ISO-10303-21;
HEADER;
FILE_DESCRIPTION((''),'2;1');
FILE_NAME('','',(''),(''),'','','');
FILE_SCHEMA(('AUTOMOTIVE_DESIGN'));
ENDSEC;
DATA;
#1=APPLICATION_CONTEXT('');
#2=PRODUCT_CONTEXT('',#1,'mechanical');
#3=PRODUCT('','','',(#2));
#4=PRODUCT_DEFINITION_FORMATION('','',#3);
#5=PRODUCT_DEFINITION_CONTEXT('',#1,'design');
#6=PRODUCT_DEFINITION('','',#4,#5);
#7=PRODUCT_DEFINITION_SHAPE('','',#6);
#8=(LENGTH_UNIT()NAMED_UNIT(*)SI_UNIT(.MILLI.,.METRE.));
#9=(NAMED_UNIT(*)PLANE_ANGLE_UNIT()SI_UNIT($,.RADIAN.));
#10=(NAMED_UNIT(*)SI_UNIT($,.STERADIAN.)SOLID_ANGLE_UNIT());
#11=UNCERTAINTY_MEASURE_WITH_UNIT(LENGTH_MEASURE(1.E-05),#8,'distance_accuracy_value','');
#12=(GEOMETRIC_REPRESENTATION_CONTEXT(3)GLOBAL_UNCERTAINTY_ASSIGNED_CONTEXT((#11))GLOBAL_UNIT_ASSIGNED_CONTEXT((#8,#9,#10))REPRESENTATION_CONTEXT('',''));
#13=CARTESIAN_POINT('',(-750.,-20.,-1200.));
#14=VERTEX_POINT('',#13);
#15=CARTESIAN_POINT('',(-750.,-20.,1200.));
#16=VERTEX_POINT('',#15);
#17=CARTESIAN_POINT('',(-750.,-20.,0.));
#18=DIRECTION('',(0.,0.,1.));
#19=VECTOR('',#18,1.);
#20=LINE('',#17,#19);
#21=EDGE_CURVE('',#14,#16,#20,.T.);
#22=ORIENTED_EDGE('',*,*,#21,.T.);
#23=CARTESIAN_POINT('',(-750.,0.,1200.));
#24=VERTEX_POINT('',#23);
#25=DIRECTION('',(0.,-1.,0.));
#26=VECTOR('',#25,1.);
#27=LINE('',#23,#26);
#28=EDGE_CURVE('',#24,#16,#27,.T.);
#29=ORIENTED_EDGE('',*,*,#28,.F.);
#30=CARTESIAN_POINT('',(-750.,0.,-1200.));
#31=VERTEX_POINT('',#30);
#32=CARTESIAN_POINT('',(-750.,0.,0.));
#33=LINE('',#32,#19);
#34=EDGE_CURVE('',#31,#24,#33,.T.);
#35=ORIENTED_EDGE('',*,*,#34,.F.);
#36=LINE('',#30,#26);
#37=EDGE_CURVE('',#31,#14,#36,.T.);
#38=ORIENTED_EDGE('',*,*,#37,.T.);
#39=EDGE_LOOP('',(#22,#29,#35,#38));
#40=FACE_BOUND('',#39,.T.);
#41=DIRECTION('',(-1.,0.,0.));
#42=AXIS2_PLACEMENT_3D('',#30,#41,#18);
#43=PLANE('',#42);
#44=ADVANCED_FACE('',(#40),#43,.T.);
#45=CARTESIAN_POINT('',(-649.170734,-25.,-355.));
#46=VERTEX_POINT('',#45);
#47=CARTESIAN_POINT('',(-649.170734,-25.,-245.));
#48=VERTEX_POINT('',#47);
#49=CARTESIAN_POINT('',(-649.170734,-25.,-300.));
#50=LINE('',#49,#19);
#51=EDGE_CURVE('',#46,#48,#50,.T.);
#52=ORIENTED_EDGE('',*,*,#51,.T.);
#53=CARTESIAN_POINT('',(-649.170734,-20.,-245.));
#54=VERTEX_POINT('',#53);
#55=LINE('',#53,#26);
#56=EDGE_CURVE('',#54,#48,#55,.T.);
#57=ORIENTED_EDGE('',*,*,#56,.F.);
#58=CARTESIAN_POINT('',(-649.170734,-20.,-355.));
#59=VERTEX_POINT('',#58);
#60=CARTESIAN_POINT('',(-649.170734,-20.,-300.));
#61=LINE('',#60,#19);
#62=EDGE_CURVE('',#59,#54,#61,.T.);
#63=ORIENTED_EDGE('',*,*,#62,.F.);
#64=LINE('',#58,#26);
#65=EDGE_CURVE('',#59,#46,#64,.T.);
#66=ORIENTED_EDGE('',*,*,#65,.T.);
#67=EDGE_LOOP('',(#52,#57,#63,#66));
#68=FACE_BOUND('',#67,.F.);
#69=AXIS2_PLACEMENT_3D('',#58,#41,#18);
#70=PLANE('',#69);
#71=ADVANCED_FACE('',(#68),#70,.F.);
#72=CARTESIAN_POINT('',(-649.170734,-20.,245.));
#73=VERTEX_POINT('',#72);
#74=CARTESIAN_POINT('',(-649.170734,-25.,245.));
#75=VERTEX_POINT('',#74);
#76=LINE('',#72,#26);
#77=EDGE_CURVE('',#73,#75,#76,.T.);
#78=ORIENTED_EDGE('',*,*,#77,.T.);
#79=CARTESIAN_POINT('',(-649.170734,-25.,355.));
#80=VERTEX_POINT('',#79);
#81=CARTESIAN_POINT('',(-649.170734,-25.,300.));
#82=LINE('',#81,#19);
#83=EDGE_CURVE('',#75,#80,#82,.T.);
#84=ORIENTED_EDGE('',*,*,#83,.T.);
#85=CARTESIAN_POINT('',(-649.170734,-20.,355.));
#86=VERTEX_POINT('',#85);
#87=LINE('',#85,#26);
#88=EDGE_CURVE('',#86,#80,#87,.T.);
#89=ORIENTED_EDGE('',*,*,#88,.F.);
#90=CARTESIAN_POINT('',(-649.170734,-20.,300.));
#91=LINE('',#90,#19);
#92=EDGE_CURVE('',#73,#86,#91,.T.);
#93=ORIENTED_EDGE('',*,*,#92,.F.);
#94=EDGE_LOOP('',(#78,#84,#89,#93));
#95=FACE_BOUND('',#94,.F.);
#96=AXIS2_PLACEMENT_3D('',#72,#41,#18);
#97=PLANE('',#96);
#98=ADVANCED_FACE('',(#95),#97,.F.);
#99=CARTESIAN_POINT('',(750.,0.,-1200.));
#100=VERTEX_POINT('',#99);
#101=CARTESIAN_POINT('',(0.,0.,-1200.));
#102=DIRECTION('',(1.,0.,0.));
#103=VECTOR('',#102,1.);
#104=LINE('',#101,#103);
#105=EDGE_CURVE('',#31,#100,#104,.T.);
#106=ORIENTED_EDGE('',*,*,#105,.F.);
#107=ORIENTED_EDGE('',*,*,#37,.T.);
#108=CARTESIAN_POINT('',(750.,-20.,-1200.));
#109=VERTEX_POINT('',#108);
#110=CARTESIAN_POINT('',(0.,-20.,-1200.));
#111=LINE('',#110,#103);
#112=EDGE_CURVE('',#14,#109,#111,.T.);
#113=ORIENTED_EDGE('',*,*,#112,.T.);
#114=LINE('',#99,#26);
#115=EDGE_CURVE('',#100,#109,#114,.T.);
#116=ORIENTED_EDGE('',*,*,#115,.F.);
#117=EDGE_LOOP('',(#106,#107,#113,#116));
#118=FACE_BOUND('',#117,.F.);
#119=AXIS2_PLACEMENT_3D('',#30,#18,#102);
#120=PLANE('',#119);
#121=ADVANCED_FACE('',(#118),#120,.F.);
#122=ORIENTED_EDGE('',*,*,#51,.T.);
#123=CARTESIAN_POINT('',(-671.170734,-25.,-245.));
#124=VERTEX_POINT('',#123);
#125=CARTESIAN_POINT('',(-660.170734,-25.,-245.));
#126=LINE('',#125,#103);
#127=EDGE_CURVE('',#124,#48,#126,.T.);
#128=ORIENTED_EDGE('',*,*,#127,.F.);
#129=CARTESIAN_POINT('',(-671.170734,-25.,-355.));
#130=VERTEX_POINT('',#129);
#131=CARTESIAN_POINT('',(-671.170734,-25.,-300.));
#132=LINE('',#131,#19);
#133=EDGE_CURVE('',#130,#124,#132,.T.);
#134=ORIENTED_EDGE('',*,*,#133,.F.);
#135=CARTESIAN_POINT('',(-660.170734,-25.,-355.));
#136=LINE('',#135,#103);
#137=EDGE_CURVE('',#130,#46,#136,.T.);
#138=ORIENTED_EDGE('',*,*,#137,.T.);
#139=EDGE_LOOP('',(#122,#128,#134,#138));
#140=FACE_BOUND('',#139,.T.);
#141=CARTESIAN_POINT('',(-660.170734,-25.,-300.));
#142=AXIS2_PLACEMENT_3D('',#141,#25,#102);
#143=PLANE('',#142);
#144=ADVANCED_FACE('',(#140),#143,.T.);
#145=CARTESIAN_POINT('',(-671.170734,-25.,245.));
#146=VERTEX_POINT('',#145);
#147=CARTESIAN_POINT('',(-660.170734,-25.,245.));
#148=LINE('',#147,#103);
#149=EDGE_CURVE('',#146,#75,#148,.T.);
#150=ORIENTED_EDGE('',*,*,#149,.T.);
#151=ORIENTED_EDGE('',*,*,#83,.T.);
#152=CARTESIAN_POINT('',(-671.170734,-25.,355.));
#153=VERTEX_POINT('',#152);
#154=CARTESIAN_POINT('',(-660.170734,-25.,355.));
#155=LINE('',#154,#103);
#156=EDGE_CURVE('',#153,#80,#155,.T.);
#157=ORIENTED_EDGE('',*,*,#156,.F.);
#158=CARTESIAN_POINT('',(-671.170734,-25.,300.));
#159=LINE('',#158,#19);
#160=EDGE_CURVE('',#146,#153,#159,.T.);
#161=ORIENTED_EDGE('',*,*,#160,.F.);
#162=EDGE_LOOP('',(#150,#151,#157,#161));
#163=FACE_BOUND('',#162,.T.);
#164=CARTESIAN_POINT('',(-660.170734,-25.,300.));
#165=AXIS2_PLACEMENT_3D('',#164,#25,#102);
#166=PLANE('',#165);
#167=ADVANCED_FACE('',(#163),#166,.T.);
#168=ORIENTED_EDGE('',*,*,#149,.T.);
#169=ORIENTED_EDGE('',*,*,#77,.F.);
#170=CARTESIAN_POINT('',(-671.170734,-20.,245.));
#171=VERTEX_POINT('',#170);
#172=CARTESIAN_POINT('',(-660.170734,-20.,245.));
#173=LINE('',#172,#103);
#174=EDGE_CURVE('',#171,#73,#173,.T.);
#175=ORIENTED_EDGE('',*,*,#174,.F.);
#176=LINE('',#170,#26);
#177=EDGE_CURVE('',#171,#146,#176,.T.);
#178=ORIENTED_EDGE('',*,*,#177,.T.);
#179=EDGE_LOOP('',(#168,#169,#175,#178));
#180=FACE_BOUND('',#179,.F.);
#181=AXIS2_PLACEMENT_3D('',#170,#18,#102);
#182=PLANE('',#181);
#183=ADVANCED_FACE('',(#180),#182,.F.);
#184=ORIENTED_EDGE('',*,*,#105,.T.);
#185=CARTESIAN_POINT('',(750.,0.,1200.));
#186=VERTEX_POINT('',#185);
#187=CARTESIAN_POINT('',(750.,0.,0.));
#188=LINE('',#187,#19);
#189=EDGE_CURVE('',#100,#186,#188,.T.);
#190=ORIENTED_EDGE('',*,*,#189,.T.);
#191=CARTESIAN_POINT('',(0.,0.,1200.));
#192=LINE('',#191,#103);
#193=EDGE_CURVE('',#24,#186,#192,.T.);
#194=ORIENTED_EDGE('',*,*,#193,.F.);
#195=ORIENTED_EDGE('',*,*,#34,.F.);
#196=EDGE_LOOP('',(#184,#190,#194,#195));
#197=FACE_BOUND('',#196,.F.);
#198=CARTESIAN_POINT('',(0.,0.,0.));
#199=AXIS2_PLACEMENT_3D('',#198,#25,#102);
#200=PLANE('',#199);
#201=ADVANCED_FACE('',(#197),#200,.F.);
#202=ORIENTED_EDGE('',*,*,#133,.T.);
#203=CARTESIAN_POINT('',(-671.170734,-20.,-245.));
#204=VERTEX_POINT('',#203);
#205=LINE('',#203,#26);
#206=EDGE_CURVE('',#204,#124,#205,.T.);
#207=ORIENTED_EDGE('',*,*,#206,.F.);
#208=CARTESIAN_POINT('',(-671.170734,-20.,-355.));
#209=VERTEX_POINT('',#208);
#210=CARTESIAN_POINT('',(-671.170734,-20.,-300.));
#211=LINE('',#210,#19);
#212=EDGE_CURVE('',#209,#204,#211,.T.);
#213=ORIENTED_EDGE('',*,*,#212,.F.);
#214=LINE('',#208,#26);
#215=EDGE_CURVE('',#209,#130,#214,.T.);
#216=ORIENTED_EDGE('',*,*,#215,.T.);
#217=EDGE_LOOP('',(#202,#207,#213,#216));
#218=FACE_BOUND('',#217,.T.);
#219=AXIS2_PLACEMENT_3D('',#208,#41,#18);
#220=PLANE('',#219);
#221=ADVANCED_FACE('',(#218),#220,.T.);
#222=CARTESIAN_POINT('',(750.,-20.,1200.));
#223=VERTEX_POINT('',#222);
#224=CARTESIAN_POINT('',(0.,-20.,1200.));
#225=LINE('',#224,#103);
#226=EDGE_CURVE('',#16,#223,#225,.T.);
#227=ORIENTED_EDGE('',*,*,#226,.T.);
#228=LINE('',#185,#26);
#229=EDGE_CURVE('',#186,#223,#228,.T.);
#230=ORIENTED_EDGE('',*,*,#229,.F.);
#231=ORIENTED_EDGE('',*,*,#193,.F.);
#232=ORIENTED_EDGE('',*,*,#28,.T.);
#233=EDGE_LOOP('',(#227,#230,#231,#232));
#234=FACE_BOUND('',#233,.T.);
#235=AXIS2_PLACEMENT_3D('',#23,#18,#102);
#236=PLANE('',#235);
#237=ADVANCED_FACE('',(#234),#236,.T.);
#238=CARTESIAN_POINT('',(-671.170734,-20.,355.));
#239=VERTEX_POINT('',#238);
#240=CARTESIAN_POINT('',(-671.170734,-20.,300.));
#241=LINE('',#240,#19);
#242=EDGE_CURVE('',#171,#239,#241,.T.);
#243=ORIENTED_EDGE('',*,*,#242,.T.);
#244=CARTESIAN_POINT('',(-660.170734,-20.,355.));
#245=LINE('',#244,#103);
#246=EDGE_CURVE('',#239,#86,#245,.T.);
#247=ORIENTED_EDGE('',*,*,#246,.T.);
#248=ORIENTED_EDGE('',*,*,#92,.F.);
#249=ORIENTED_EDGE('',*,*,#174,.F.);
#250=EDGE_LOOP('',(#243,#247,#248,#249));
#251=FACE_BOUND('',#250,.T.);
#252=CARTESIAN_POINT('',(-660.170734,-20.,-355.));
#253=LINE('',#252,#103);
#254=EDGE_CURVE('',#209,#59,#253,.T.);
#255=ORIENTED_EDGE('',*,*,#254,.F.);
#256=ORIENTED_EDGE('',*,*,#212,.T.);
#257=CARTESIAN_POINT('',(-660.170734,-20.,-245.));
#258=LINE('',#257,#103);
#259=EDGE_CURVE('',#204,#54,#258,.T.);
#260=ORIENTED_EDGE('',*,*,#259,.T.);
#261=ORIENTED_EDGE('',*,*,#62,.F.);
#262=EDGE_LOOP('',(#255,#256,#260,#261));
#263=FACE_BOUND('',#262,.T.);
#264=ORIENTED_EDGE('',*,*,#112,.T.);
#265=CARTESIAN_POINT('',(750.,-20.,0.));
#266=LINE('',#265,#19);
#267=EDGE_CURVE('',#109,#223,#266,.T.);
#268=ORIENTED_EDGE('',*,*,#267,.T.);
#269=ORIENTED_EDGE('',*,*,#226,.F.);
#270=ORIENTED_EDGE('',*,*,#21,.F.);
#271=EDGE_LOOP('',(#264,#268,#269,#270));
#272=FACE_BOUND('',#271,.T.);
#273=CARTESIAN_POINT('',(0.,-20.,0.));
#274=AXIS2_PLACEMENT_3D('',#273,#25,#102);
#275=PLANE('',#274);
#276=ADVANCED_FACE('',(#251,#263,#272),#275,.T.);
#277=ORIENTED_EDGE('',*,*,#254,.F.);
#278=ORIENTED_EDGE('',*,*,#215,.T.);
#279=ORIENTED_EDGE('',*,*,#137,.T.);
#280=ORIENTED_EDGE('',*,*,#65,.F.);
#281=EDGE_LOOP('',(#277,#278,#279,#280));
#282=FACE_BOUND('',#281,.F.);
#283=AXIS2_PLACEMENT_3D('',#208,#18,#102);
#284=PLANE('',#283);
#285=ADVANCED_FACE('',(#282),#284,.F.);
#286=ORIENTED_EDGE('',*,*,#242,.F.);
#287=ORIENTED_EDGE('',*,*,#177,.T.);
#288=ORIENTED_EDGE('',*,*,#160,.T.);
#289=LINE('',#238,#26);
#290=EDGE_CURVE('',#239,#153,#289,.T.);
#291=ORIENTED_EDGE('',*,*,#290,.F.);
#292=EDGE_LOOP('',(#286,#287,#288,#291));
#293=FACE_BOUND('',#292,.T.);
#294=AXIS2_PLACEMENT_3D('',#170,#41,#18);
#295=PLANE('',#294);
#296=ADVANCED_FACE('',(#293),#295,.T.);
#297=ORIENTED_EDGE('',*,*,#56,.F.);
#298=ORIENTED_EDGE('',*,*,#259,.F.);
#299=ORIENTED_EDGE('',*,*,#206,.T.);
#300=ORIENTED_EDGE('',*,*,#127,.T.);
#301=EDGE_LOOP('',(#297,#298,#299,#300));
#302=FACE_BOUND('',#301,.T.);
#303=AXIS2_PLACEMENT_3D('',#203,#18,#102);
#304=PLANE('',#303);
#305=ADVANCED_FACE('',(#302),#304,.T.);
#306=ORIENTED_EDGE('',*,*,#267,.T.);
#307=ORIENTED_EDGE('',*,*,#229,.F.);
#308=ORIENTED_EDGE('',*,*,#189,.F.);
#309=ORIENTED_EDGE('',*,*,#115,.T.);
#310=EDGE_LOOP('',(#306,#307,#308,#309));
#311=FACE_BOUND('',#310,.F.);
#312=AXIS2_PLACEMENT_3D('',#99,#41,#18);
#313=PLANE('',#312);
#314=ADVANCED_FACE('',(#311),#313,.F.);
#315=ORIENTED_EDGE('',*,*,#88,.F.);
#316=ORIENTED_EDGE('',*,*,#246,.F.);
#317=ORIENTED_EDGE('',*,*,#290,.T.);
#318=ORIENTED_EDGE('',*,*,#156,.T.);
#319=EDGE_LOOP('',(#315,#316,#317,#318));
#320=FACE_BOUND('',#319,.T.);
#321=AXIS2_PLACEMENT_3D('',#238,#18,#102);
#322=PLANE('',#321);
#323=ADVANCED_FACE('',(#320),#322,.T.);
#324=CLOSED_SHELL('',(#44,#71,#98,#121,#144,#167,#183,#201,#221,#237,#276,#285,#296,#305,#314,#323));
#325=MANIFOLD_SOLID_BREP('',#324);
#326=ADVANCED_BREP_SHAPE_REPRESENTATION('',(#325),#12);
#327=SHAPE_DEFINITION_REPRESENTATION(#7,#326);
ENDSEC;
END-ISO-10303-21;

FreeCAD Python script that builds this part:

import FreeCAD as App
import Part
import Sketcher
from FreeCAD import Vector


def add_polygon(sketch, points):
    """Adds a closed chain of lines whose ends are joined by coincident constraints."""
    first, n = sketch.GeometryCount, len(points)
    for a, b in zip(points, points[1:] + points[:1]):
        sketch.addGeometry(Part.LineSegment(App.Vector(*a, 0), App.Vector(*b, 0)), False)
    for i in range(n):
        sketch.addConstraint(Sketcher.Constraint("Coincident", first + i, 2, first + (i + 1) % n, 1))

doc = App.newDocument("Part")
body = doc.addObject("PartDesign::Body", "Body")

# Sketch on XZ plane
sketch1 = body.newObject("Sketcher::SketchObject", "Sketch")
sketch1.AttachmentSupport = (doc.getObject("XZ_Plane"), [""])
sketch1.MapMode = "FlatFace"
add_polygon(sketch1, [(-750, 1200), (-750, -1200), (750, -1200), (750, 1200)])  # lines 0-3
sketch1.addConstraint(Sketcher.Constraint("Vertical", 0))
sketch1.addConstraint(Sketcher.Constraint("Horizontal", 1))
sketch1.addConstraint(Sketcher.Constraint("Vertical", 2))
sketch1.addConstraint(Sketcher.Constraint("Horizontal", 3))
sketch1.addConstraint(Sketcher.Constraint("Symmetric", 0, 2, 2, 2, -1, 1))
sketch1.addConstraint(Sketcher.Constraint("DistanceX", 1, 1, 1, 2, 1500.0))
sketch1.addConstraint(Sketcher.Constraint("DistanceY", 0, 2, 0, 1, 2400.0))
pad1 = body.newObject("PartDesign::Pad", "Pad")
pad1.Profile = sketch1
pad1.Length = 20

# Sketch on XZ plane
sketch2 = body.newObject("Sketcher::SketchObject", "Sketch001")
sketch2.AttachmentSupport = (doc.getObject("XZ_Plane"), [""])
sketch2.MapMode = "FlatFace"
sketch2.AttachmentOffset = App.Placement(Vector(0, 0, 20), App.Rotation())
add_polygon(sketch2, [(-671, 355), (-671, 245), (-649, 245), (-649, 355)])  # lines 0-3
add_polygon(sketch2, [(-671, -245), (-671, -355), (-649, -355), (-649, -245)])  # lines 4-7
sketch2.addConstraint(Sketcher.Constraint("Vertical", 0))
sketch2.addConstraint(Sketcher.Constraint("Horizontal", 1))
sketch2.addConstraint(Sketcher.Constraint("Vertical", 2))
sketch2.addConstraint(Sketcher.Constraint("Horizontal", 3))
sketch2.addConstraint(Sketcher.Constraint("Vertical", 4))
sketch2.addConstraint(Sketcher.Constraint("Horizontal", 5))
sketch2.addConstraint(Sketcher.Constraint("Vertical", 6))
sketch2.addConstraint(Sketcher.Constraint("Horizontal", 7))
sketch2.addConstraint(Sketcher.Constraint("Symmetric", 3, 2, 4, 2, -1))
sketch2.addConstraint(Sketcher.Constraint("Symmetric", 1, 2, 6, 2, -1))
sketch2.addConstraint(Sketcher.Constraint("DistanceX", 1, 1, 1, 2, 22.0))
sketch2.addConstraint(Sketcher.Constraint("DistanceY", 0, 2, 0, 1, 110.0))
sketch2.addConstraint(Sketcher.Constraint("DistanceY", -1, 1, 0, 2, 245.0))
sketch2.addConstraint(Sketcher.Constraint("DistanceX", 0, 2, -1, 1, 671.170734))
pad2 = body.newObject("PartDesign::Pad", "Pad001")
pad2.Profile = sketch2
pad2.Length = 5

doc.recompute()
